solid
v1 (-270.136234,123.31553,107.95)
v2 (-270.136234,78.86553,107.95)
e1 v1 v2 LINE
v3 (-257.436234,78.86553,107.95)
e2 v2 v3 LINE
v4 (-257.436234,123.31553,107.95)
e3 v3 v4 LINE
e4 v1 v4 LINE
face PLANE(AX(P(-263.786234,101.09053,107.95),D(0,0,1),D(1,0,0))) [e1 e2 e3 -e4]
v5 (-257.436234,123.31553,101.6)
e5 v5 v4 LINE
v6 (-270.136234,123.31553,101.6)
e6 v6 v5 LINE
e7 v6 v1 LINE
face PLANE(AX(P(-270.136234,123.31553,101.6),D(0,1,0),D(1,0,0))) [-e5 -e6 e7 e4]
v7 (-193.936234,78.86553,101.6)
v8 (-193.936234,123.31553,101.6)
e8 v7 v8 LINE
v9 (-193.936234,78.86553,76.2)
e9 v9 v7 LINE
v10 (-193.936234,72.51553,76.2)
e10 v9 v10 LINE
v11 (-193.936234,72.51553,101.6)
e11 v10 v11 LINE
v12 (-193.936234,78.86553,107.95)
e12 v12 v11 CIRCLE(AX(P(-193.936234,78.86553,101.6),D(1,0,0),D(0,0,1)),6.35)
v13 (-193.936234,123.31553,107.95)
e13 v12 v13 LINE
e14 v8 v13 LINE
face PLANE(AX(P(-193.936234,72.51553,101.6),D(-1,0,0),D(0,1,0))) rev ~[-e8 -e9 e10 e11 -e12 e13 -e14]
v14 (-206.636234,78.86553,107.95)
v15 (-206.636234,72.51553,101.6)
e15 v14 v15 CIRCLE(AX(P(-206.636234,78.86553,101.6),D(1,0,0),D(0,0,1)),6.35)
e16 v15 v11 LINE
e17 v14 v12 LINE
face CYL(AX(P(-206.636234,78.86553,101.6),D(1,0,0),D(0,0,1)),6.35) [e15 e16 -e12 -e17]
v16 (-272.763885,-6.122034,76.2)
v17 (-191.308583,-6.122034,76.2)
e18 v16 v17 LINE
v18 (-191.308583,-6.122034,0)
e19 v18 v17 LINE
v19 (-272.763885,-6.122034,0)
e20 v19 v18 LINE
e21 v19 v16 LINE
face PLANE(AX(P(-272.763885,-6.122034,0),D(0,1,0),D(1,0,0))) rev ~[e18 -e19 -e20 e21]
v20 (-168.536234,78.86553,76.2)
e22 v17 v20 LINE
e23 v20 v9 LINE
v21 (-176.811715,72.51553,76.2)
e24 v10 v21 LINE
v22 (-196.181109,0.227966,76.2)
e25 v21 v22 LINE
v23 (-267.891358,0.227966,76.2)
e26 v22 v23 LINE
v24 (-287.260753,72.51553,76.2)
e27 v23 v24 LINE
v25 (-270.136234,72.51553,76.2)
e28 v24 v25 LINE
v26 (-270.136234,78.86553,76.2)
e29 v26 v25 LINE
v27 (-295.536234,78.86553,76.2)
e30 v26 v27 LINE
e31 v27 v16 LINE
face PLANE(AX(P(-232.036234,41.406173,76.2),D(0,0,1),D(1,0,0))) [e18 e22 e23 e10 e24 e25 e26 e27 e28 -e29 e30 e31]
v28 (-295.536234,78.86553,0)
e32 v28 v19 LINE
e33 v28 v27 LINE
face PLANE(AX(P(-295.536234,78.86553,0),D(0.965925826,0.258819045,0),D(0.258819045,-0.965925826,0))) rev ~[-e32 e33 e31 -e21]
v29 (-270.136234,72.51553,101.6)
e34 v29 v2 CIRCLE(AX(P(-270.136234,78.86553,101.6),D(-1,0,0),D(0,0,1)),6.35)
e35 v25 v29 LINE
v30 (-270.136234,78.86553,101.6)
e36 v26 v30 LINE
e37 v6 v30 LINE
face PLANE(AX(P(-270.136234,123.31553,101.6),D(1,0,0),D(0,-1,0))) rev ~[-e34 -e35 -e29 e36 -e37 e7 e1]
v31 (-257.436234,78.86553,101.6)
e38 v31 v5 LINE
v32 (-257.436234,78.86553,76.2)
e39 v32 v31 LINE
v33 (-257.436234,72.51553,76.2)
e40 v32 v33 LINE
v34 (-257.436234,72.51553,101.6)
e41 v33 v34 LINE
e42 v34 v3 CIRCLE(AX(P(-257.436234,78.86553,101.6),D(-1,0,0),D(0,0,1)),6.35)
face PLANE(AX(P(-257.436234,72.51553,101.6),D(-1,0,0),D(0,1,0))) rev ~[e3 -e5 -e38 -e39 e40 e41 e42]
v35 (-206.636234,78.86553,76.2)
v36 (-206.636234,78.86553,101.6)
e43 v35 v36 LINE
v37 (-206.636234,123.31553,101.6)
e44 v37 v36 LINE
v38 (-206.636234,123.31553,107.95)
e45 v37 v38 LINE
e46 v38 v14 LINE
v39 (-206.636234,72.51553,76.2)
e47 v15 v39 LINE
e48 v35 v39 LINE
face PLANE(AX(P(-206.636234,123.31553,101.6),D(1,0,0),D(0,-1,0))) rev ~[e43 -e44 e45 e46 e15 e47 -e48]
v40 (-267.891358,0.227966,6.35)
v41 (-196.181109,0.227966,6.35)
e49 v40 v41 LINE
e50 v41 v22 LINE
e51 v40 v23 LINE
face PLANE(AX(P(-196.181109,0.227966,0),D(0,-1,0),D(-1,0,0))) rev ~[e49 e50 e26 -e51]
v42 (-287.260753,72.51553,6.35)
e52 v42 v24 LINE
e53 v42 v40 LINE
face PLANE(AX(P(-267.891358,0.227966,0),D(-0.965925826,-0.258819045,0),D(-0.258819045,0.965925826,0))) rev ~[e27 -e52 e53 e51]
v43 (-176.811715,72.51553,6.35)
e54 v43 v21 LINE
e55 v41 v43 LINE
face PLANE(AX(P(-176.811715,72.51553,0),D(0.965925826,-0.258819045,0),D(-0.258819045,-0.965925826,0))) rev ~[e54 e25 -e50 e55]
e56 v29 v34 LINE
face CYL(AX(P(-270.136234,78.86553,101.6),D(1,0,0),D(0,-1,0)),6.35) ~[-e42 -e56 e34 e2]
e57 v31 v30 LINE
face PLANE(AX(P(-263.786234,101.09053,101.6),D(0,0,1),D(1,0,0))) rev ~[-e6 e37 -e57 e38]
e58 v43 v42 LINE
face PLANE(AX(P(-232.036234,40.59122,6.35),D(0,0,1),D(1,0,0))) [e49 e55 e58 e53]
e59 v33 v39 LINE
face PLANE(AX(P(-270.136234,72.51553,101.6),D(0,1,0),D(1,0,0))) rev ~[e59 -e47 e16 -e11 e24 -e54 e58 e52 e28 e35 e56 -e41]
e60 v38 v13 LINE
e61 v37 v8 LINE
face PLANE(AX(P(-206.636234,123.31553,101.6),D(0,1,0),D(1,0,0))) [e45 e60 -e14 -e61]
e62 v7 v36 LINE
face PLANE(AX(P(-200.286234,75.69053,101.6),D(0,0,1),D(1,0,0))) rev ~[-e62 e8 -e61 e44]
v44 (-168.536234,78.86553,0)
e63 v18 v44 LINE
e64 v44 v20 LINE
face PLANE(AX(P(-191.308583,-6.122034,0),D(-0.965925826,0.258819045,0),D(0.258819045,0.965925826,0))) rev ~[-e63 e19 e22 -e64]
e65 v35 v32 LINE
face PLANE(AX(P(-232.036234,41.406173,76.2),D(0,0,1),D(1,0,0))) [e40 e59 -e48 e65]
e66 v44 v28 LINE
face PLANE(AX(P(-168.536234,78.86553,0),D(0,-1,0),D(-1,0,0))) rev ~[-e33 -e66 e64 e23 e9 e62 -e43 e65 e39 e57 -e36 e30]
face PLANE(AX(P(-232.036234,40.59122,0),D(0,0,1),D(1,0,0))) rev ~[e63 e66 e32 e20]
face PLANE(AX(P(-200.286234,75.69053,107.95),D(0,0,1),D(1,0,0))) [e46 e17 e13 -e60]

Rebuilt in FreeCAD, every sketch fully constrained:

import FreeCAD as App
import Part
import Sketcher
from FreeCAD import Vector
Q = App.Units.Quantity


def edges_at(feature, points):
    """Names of the edges that pass closest to the given points."""
    edges = feature.Shape.Edges
    near = lambda p: min(range(len(edges)), key=lambda i: edges[i].distToShape(Part.Vertex(*p))[0])
    return sorted({f"Edge{near(p) + 1}" for p in points})


def add_polygon(sketch, points):
    """Adds a closed chain of lines whose ends are joined by coincident constraints."""
    first, n = sketch.GeometryCount, len(points)
    for a, b in zip(points, points[1:] + points[:1]):
        sketch.addGeometry(Part.LineSegment(App.Vector(*a, 0), App.Vector(*b, 0)), False)
    for i in range(n):
        sketch.addConstraint(Sketcher.Constraint("Coincident", first + i, 2, first + (i + 1) % n, 1))

doc = App.newDocument("Part")
body = doc.addObject("PartDesign::Body", "Body")

# Sketch on XY plane
sketch1 = body.newObject("Sketcher::SketchObject", "Sketch")
sketch1.AttachmentSupport = (doc.getObject("XY_Plane"), [""])
sketch1.MapMode = "FlatFace"
add_polygon(sketch1, [(-191.308583, -6.122034), (-168.536234, 78.86553), (-295.536234, 78.86553), (-272.763885, -6.122034)])  # lines 0-3
add_polygon(sketch1, [(-196.181109, 0.227966), (-267.891358, 0.227966), (-287.260753, 72.51553), (-176.811715, 72.51553)])  # lines 4-7
sketch1.addConstraint([
    Sketcher.Constraint("Horizontal", 1),
    Sketcher.Constraint("Horizontal", 3),
    Sketcher.Constraint("Horizontal", 4),
    Sketcher.Constraint("Horizontal", 6),
    Sketcher.Constraint("Parallel", 2, 5),
    Sketcher.Constraint("Parallel", 0, 7),
    Sketcher.Constraint("Equal", 0, 2),
    Sketcher.Constraint("DistanceX", 1, 2, 1, 1, Q("5 in")),
    Sketcher.Constraint("Angle", 0, Q("75 deg")),
    Sketcher.Constraint("DistanceY", 2, 2, 4, 2, Q("0.25 in")),
    Sketcher.Constraint("DistanceY", 5, 2, 1, 2, Q("0.25 in")),
    Sketcher.Constraint("Distance", 0, Q("3.464 in")),
    Sketcher.Constraint("DistanceX", 4, 2, 4, 1, Q("71.710249 mm")),
    Sketcher.Constraint("DistanceY", -1, 1, 0, 2, Q("78.86553 mm")),
    Sketcher.Constraint("DistanceX", 4, 2, -1, 1, Q("267.891358 mm")),
    Sketcher.Constraint("DistanceX", 1, 2, 5, 2, Q("8.275481 mm")),
])
pad1 = body.newObject("PartDesign::Pad", "Pad")
pad1.Profile = sketch1
pad1.Length = Q("3 in")

# Sketch on XY plane
sketch2 = body.newObject("Sketcher::SketchObject", "Sketch001")
sketch2.AttachmentSupport = (doc.getObject("XY_Plane"), [""])
sketch2.MapMode = "FlatFace"
add_polygon(sketch2, [(-176.811715, 72.51553), (-287.260753, 72.51553), (-267.891358, 0.227966), (-196.181109, 0.227966)])  # lines 0-3
sketch2.addConstraint([
    Sketcher.Constraint("Horizontal", 0),
    Sketcher.Constraint("Horizontal", 2),
    Sketcher.Constraint("Equal", 1, 3),
    Sketcher.Constraint("Angle", 1, Q("-75 deg")),
    Sketcher.Constraint("DistanceX", 2, 1, 2, 2, Q("71.710249 mm")),
    Sketcher.Constraint("DistanceX", 0, 2, 0, 1, Q("110.449038 mm")),
    Sketcher.Constraint("DistanceY", -1, 1, 0, 2, Q("72.51553 mm")),
    Sketcher.Constraint("DistanceX", 1, 2, -1, 1, Q("267.891358 mm")),
])
pad2 = body.newObject("PartDesign::Pad", "Pad001")
pad2.Profile = sketch2
pad2.Length = Q("0.25 in")

# Sketch on XZ plane
sketch3 = body.newObject("Sketcher::SketchObject", "Sketch002")
sketch3.AttachmentSupport = (doc.getObject("XZ_Plane"), [""])
sketch3.MapMode = "FlatFace"
sketch3.AttachmentOffset = App.Placement(Vector(0, 0, -78.86553), App.Rotation())
add_polygon(sketch3, [(-193.936234, 101.6), (-193.936234, 76.2), (-206.636234, 76.2), (-206.636234, 101.6)])  # lines 0-3
add_polygon(sketch3, [(-257.436234, 101.6), (-257.436234, 76.2), (-270.136234, 76.2), (-270.136234, 101.6)])  # lines 4-7
sketch3.addConstraint([
    Sketcher.Constraint("Vertical", 0),
    Sketcher.Constraint("Horizontal", 1),
    Sketcher.Constraint("Vertical", 2),
    Sketcher.Constraint("Horizontal", 3),
    Sketcher.Constraint("Vertical", 4),
    Sketcher.Constraint("Horizontal", 5),
    Sketcher.Constraint("Vertical", 6),
    Sketcher.Constraint("Horizontal", 7),
    Sketcher.Constraint("Horizontal", 1, 2, 4, 2),
    Sketcher.Constraint("Horizontal", 3, 2, 6, 2),
    Sketcher.Constraint("Equal", 3, 5),
    Sketcher.Constraint("DistanceY", 0, 2, 0, 1, Q("1 in")),
    Sketcher.Constraint("DistanceX", 1, 2, 1, 1, Q("0.5 in")),
    Sketcher.Constraint("DistanceY", -1, 1, 0, 2, Q("3 in")),
    Sketcher.Constraint("DistanceX", 4, 2, 1, 2, Q("2 in")),
    Sketcher.Constraint("DistanceX", 0, 2, -1, 1, Q("193.936234 mm")),
])
pad3 = body.newObject("PartDesign::Pad", "Pad002")
pad3.Profile = sketch3
pad3.Length = Q("0.25 in")

# Sketch on XY plane
sketch4 = body.newObject("Sketcher::SketchObject", "Sketch003")
sketch4.AttachmentSupport = (doc.getObject("XY_Plane"), [""])
sketch4.MapMode = "FlatFace"
sketch4.AttachmentOffset = App.Placement(Vector(0, 0, 4 * 25.4), App.Rotation())
add_polygon(sketch4, [(-206.636234, 72.51553), (-193.936234, 72.51553), (-193.936234, 123.31553), (-206.636234, 123.31553)])  # lines 0-3
sketch4.addConstraint([
    Sketcher.Constraint("Horizontal", 0),
    Sketcher.Constraint("Vertical", 1),
    Sketcher.Constraint("Horizontal", 2),
    Sketcher.Constraint("Vertical", 3),
    Sketcher.Constraint("DistanceY", 1, 1, 1, 2, Q("2 in")),
    Sketcher.Constraint("DistanceX", 0, 1, 0, 2, Q("0.5 in")),
    Sketcher.Constraint("DistanceY", -1, 1, 0, 2, Q("72.51553 mm")),
    Sketcher.Constraint("DistanceX", 0, 2, -1, 1, Q("193.936234 mm")),
])
pad4 = body.newObject("PartDesign::Pad", "Pad003")
pad4.Profile = sketch4
pad4.Length = Q("0.25 in")

# Sketch on XY plane
sketch5 = body.newObject("Sketcher::SketchObject", "Sketch004")
sketch5.AttachmentSupport = (doc.getObject("XY_Plane"), [""])
sketch5.MapMode = "FlatFace"
sketch5.AttachmentOffset = App.Placement(Vector(0, 0, 4 * 25.4), App.Rotation())
add_polygon(sketch5, [(-270.136234, 123.31553), (-270.136234, 72.51553), (-257.436234, 72.51553), (-257.436234, 123.31553)])  # lines 0-3
sketch5.addConstraint([
    Sketcher.Constraint("Vertical", 0),
    Sketcher.Constraint("Horizontal", 1),
    Sketcher.Constraint("Vertical", 2),
    Sketcher.Constraint("Horizontal", 3),
    Sketcher.Constraint("DistanceY", 0, 2, 0, 1, Q("2 in")),
    Sketcher.Constraint("DistanceX", 1, 1, 1, 2, Q("0.5 in")),
    Sketcher.Constraint("DistanceY", -1, 1, 0, 2, Q("72.51553 mm")),
    Sketcher.Constraint("DistanceX", 0, 2, -1, 1, Q("270.136234 mm")),
])
pad5 = body.newObject("PartDesign::Pad", "Pad004")
pad5.Profile = sketch5
pad5.Length = Q("0.25 in")
doc.recompute()

fillet = body.newObject("PartDesign::Fillet", "Fillet")
fillet.Base = (pad5, edges_at(pad5, [(-200.286, 72.516, 107.95)]))
fillet.Radius = Q("0.25 in")
doc.recompute()

fillet2 = body.newObject("PartDesign::Fillet", "Fillet001")
fillet2.Base = (fillet, edges_at(fillet, [(-263.786, 72.516, 107.95)]))
fillet2.Radius = Q("0.25 in")

doc.recompute()
